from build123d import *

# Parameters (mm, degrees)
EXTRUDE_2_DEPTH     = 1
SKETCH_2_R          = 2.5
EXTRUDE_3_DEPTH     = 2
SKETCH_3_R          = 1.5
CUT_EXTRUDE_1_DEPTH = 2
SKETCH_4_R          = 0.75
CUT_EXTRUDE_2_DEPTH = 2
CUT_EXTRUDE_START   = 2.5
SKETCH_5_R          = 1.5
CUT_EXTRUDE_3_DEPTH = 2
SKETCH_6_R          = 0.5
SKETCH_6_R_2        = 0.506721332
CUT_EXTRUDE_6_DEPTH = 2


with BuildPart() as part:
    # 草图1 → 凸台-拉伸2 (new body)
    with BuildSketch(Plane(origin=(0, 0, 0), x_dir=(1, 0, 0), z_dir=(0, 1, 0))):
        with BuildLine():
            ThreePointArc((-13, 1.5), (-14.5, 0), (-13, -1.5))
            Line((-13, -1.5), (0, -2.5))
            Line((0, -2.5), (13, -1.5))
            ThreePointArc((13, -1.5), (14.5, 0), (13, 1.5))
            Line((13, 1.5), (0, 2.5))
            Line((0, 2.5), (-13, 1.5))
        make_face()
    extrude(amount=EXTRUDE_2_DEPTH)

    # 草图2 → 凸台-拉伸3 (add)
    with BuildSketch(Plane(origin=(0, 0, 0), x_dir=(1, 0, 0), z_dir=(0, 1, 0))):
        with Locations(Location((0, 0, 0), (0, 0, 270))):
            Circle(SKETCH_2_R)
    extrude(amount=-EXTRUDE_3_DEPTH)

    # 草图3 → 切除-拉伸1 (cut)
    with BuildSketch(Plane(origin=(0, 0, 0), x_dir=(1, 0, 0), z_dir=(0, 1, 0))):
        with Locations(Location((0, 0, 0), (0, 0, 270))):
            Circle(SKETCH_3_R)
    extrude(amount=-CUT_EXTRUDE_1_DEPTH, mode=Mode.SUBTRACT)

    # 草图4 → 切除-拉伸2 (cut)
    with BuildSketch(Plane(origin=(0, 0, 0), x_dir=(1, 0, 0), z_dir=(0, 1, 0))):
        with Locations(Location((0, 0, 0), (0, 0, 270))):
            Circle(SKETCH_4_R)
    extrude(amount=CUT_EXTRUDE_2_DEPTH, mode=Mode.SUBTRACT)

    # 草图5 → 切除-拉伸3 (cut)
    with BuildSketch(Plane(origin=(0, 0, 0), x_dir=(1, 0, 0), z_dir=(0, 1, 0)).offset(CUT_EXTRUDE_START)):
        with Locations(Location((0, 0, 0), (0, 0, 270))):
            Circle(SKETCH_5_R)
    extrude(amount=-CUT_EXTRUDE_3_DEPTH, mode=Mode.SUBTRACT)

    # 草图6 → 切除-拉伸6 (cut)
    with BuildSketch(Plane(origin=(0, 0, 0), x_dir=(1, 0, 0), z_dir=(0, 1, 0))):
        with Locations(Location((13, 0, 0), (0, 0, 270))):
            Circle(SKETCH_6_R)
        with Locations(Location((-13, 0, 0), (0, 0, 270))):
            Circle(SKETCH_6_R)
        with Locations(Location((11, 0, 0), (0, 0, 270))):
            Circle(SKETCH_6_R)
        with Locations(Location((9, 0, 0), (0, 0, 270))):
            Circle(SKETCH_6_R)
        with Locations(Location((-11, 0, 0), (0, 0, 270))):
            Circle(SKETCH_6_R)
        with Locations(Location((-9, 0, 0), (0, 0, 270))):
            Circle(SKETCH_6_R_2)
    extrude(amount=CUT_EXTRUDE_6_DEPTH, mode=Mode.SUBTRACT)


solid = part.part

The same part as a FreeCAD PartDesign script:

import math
import FreeCAD as App
import Part
import Sketcher
Q = App.Units.Quantity

doc = App.newDocument("Part")
body = doc.addObject("PartDesign::Body", "Body")

# Sketch on XZ plane
sketch1 = doc.addObject("Sketcher::SketchObject", "Sketch")
body.addObject(sketch1)
sketch1.AttachmentSupport = (doc.XZ_Plane, [""])
sketch1.MapMode = "FlatFace"
sketch1.addGeometry([
    Part.ArcOfCircle(Part.Circle(App.Vector(-13, 0, 0), App.Vector(0, 0, 1), 1.5), math.radians(90), math.radians(270)),  # 0
    Part.LineSegment(App.Vector(-13, 1.5, 0), App.Vector(0, 2.5, 0)),  # 1
    Part.LineSegment(App.Vector(0, 2.5, 0), App.Vector(13, 1.5, 0)),  # 2
    Part.ArcOfCircle(Part.Circle(App.Vector(13, 0, 0), App.Vector(0, 0, 1), 1.5), math.radians(-90), math.radians(90)),  # 3
    Part.LineSegment(App.Vector(13, -1.5, 0), App.Vector(0, -2.5, 0)),  # 4
    Part.LineSegment(App.Vector(0, -2.5, 0), App.Vector(-13, -1.5, 0)),  # 5
], False)
sketch1.addConstraint([
    Sketcher.Constraint("Coincident", 0, 1, 1, 1),
    Sketcher.Constraint("Coincident", 1, 2, 2, 1),
    Sketcher.Constraint("Coincident", 2, 2, 3, 2),
    Sketcher.Constraint("Coincident", 3, 1, 4, 1),
    Sketcher.Constraint("Coincident", 4, 2, 5, 1),
    Sketcher.Constraint("Coincident", 5, 2, 0, 2),
    Sketcher.Constraint("Equal", 0, 3),
    Sketcher.Constraint("Symmetric", 0, 3, 3, 3, -1, 1),
    Sketcher.Constraint("Symmetric", 1, 2, 4, 2, -1, 1),
    Sketcher.Constraint("Symmetric", 0, 1, 2, 2, -2),
    Sketcher.Constraint("PointOnObject", 1, 2, -2),
    Sketcher.Constraint("Parallel", 1, 4),
    Sketcher.Constraint("Parallel", 2, 5),
    Sketcher.Constraint("Vertical", 3, 3, 2, 2),
    Sketcher.Constraint("Radius", 0, Q("1.5 mm")),
    Sketcher.Constraint("DistanceX", 0, 3, -1, 1, Q("13 mm")),
    Sketcher.Constraint("DistanceY", 0, 1, 1, 2, Q("1 mm")),
])
pad1 = doc.addObject("PartDesign::Pad", "Pad")
body.addObject(pad1)
pad1.Profile = sketch1
pad1.Length = 1
pad1.Reversed = True

# Sketch on XZ plane
sketch2 = doc.addObject("Sketcher::SketchObject", "Sketch001")
body.addObject(sketch2)
sketch2.AttachmentSupport = (doc.XZ_Plane, [""])
sketch2.MapMode = "FlatFace"
sketch2.addGeometry(Part.Circle(App.Vector(0, 0, 0), App.Vector(0, 0, 1), 2.5), False)
sketch2.addConstraint([
    Sketcher.Constraint("Coincident", 0, 3, -1, 1),
    Sketcher.Constraint("Diameter", 0, Q("5 mm")),
])
pad2 = doc.addObject("PartDesign::Pad", "Pad001")
body.addObject(pad2)
pad2.Profile = sketch2
pad2.Length = 2

# Sketch on XZ plane
sketch3 = doc.addObject("Sketcher::SketchObject", "Sketch002")
body.addObject(sketch3)
sketch3.AttachmentSupport = (doc.XZ_Plane, [""])
sketch3.MapMode = "FlatFace"
sketch3.addGeometry(Part.Circle(App.Vector(0, 0, 0), App.Vector(0, 0, 1), 1.5), False)
sketch3.addConstraint([
    Sketcher.Constraint("Coincident", 0, 3, -1, 1),
    Sketcher.Constraint("Diameter", 0, Q("3 mm")),
])
pocket1 = doc.addObject("PartDesign::Pocket", "Pocket")
body.addObject(pocket1)
pocket1.Profile = sketch3
pocket1.Length = 2
pocket1.Reversed = True

# Sketch on XZ plane
sketch4 = doc.addObject("Sketcher::SketchObject", "Sketch003")
body.addObject(sketch4)
sketch4.AttachmentSupport = (doc.XZ_Plane, [""])
sketch4.MapMode = "FlatFace"
sketch4.addGeometry(Part.Circle(App.Vector(0, 0, 0), App.Vector(0, 0, 1), 0.8), False)
sketch4.addConstraint([
    Sketcher.Constraint("Coincident", 0, 3, -1, 1),
    Sketcher.Constraint("Diameter", 0, Q("1.5 mm")),
])
pocket2 = doc.addObject("PartDesign::Pocket", "Pocket001")
body.addObject(pocket2)
pocket2.Profile = sketch4
pocket2.Length = 2

# Sketch on XZ plane
sketch5 = doc.addObject("Sketcher::SketchObject", "Sketch004")
body.addObject(sketch5)
sketch5.AttachmentSupport = (doc.XZ_Plane, [""])
sketch5.MapMode = "FlatFace"
sketch5.AttachmentOffset = App.Placement(App.Vector(0, 0, -2.5), App.Rotation())
sketch5.addGeometry(Part.Circle(App.Vector(0, 0, 0), App.Vector(0, 0, 1), 1.5), False)
sketch5.addConstraint([
    Sketcher.Constraint("Coincident", 0, 3, -1, 1),
    Sketcher.Constraint("Diameter", 0, Q("3 mm")),
])
pocket3 = doc.addObject("PartDesign::Pocket", "Pocket002")
body.addObject(pocket3)
pocket3.Profile = sketch5
pocket3.Length = 2
pocket3.Reversed = True

# Sketch on XZ plane
sketch6 = doc.addObject("Sketcher::SketchObject", "Sketch005")
body.addObject(sketch6)
sketch6.AttachmentSupport = (doc.XZ_Plane, [""])
sketch6.MapMode = "FlatFace"
sketch6.addGeometry([
    Part.Circle(App.Vector(13, 0, 0), App.Vector(0, 0, 1), 0.5),  # 0
    Part.Circle(App.Vector(-13, 0, 0), App.Vector(0, 0, 1), 0.5),  # 1
    Part.Circle(App.Vector(11, 0, 0), App.Vector(0, 0, 1), 0.5),  # 2
    Part.Circle(App.Vector(9, 0, 0), App.Vector(0, 0, 1), 0.5),  # 3
    Part.Circle(App.Vector(-11, 0, 0), App.Vector(0, 0, 1), 0.5),  # 4
    Part.Circle(App.Vector(-9, 0, 0), App.Vector(0, 0, 1), 0.5),  # 5
], False)
sketch6.addConstraint([
    Sketcher.Constraint("Equal", 0, 1),
    Sketcher.Constraint("Equal", 1, 2),
    Sketcher.Constraint("Equal", 2, 3),
    Sketcher.Constraint("Equal", 3, 4),
    Sketcher.Constraint("Symmetric", 0, 3, 1, 3, -1, 1),
    Sketcher.Constraint("Symmetric", 2, 3, 4, 3, -1, 1),
    Sketcher.Constraint("Symmetric", 3, 3, 5, 3, -1, 1),
    Sketcher.Constraint("PointOnObject", 0, 3, -1),
    Sketcher.Constraint("PointOnObject", 2, 3, -1),
    Sketcher.Constraint("PointOnObject", 3, 3, -1),
    Sketcher.Constraint("Diameter", 0, Q("1 mm")),
    Sketcher.Constraint("DistanceX", -1, 1, 0, 3, Q("13 mm")),
    Sketcher.Constraint("DistanceX", -1, 1, 2, 3, Q("11 mm")),
    Sketcher.Constraint("DistanceX", -1, 1, 3, 3, Q("9 mm")),
    Sketcher.Constraint("Diameter", 5, Q("1.013443 mm")),
])
pocket4 = doc.addObject("PartDesign::Pocket", "Pocket003")
body.addObject(pocket4)
pocket4.Profile = sketch6
pocket4.Length = 2

doc.recompute()
